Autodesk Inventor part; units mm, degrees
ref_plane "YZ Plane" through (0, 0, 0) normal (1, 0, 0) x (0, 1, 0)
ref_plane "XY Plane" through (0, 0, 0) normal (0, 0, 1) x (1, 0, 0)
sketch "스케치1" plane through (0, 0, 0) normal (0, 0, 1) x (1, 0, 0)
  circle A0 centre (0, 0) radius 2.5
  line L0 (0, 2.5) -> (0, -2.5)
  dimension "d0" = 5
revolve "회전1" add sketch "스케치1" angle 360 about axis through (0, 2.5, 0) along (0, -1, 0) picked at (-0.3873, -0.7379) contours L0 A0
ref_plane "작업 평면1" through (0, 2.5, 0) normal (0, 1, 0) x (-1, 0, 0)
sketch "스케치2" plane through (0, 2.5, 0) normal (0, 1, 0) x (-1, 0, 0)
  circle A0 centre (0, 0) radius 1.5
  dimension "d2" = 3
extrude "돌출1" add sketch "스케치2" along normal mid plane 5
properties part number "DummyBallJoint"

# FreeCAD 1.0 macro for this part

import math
import FreeCAD as App
import Part
import Sketcher
Q = App.Units.Quantity

doc = App.newDocument("Part")
body = doc.addObject("PartDesign::Body", "Body")

sketch1 = body.newObject("Sketcher::SketchObject", "Sketch")
sketch1.AttachmentSupport = (doc.getObject("XY_Plane"), [""])
sketch1.MapMode = "FlatFace"
sketch1.addGeometry([
    Part.LineSegment(App.Vector(0, -2.5, 0), App.Vector(0, 2.5, 0)),
    Part.ArcOfCircle(Part.Circle(App.Vector(0, 0, 0), App.Vector(0, 0, 1), 2.5), math.radians(90), math.radians(270)),
], False)
sketch1.addConstraint([
    Sketcher.Constraint("Coincident", 0, 1, 1, 2),
    Sketcher.Constraint("Coincident", 1, 1, 0, 2),
    Sketcher.Constraint("Vertical", 0),
    Sketcher.Constraint("Coincident", 1, 3, -1, 1),
    Sketcher.Constraint("PointOnObject", 0, 1, -2),
    Sketcher.Constraint("Radius", 1, Q("2.5 mm")),
])
revolution = body.newObject("PartDesign::Revolution", "Revolution")
revolution.Profile = sketch1
revolution.ReferenceAxis = (sketch1, ["V_Axis"])
revolution.Angle = 360

sketch2 = body.newObject("Sketcher::SketchObject", "Sketch001")
sketch2.AttachmentSupport = (doc.getObject("XZ_Plane"), [""])
sketch2.MapMode = "FlatFace"
sketch2.AttachmentOffset = App.Placement(App.Vector(0, 0, -2.5), App.Rotation())
sketch2.addGeometry(Part.Circle(App.Vector(0, 0, 0), App.Vector(0, 0, 1), 1.5), False)
sketch2.addConstraint([
    Sketcher.Constraint("Coincident", 0, 3, -1, 1),
    Sketcher.Constraint("Diameter", 0, Q("3 mm")),
])
pad1 = body.newObject("PartDesign::Pad", "Pad")
pad1.Profile = sketch2
pad1.Length = 5
pad1.Midplane = True

doc.recompute()
